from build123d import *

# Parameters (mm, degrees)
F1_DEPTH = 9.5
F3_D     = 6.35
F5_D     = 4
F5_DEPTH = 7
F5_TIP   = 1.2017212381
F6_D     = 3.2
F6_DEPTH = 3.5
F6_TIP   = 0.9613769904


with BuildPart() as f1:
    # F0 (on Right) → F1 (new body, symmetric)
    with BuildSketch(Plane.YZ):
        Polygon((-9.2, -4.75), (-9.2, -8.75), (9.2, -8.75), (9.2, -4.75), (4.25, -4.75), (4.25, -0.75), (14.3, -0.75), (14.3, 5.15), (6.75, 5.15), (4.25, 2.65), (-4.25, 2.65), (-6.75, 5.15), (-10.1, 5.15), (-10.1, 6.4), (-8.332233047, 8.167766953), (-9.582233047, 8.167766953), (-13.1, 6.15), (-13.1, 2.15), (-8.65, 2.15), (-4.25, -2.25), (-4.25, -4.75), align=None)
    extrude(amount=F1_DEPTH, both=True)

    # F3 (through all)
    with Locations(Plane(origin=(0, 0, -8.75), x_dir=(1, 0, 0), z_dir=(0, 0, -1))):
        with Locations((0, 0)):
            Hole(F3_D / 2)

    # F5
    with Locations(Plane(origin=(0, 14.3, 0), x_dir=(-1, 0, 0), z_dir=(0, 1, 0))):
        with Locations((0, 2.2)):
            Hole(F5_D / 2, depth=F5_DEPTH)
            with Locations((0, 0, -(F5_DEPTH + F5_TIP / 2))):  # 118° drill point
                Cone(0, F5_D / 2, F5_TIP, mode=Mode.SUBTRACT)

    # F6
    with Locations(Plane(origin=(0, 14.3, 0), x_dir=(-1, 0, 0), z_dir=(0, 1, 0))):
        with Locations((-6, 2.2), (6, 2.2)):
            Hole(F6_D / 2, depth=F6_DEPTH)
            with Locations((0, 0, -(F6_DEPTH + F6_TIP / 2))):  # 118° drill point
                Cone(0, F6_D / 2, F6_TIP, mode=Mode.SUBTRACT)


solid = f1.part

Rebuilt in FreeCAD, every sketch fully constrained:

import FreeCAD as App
import Part
import Sketcher

V = App.Vector


def add_polygon(sketch, points):
    """Adds a closed chain of lines whose ends are joined by coincident constraints."""
    first, n = sketch.GeometryCount, len(points)
    for a, b in zip(points, points[1:] + points[:1]):
        sketch.addGeometry(Part.LineSegment(App.Vector(*a, 0), App.Vector(*b, 0)), False)
    for i in range(n):
        sketch.addConstraint(Sketcher.Constraint("Coincident", first + i, 2, first + (i + 1) % n, 1))

doc = App.newDocument("Part")
body = doc.addObject("PartDesign::Body", "Body")

# Sketch on YZ plane
sketch1 = doc.addObject("Sketcher::SketchObject", "Sketch")
body.addObject(sketch1)
sketch1.AttachmentSupport = (doc.YZ_Plane, [""])
sketch1.MapMode = "FlatFace"
add_polygon(sketch1, [(-9.2, -4.8), (-9.2, -8.8), (9.2, -8.8), (9.2, -4.8), (4.2, -4.8), (4.2, -0.8), (14.3, -0.8), (14.3, 5.2), (6.8, 5.2), (4.2, 2.6), (-4.2, 2.6), (-6.8, 5.2), (-10.1, 5.2), (-10.1, 6.4), (-8.3, 8.2), (-9.6, 8.2), (-13.1, 6.2), (-13.1, 2.1), (-8.7, 2.1), (-4.2, -2.2), (-4.2, -4.8)])  # lines 0-20
sketch1.addConstraint(Sketcher.Constraint("Vertical", 0))
sketch1.addConstraint(Sketcher.Constraint("Horizontal", 1))
sketch1.addConstraint(Sketcher.Constraint("Vertical", 2))
sketch1.addConstraint(Sketcher.Constraint("Horizontal", 3))
sketch1.addConstraint(Sketcher.Constraint("Vertical", 4))
sketch1.addConstraint(Sketcher.Constraint("Horizontal", 5))
sketch1.addConstraint(Sketcher.Constraint("Vertical", 6))
sketch1.addConstraint(Sketcher.Constraint("Horizontal", 7))
sketch1.addConstraint(Sketcher.Constraint("Horizontal", 9))
sketch1.addConstraint(Sketcher.Constraint("Horizontal", 11))
sketch1.addConstraint(Sketcher.Constraint("Vertical", 12))
sketch1.addConstraint(Sketcher.Constraint("Horizontal", 14))
sketch1.addConstraint(Sketcher.Constraint("Vertical", 16))
sketch1.addConstraint(Sketcher.Constraint("Horizontal", 17))
sketch1.addConstraint(Sketcher.Constraint("Vertical", 19))
sketch1.addConstraint(Sketcher.Constraint("Horizontal", 20))
sketch1.addConstraint(Sketcher.Constraint("Symmetric", 7, 2, 10, 2, -2))
sketch1.addConstraint(Sketcher.Constraint("Symmetric", 3, 2, 19, 2, -2))
sketch1.addConstraint(Sketcher.Constraint("Perpendicular", 8, 10))
sketch1.addConstraint(Sketcher.Constraint("Perpendicular", 10, 13))
sketch1.addConstraint(Sketcher.Constraint("Perpendicular", 13, 18))
sketch1.addConstraint(Sketcher.Constraint("Vertical", 4, 2, 8, 2))
sketch1.addConstraint(Sketcher.Constraint("Vertical", 9, 2, 18, 2))
sketch1.addConstraint(Sketcher.Constraint("Equal", 3, 20))
sketch1.addConstraint(Sketcher.Constraint("Equal", 2, 4))
sketch1.addConstraint(Sketcher.Constraint("Equal", 14, 12))
sketch1.addConstraint(Sketcher.Constraint("Equal", 4, 16))
sketch1.addConstraint(Sketcher.Constraint("DistanceY", 0, 2, 0, 1, 4.0))
sketch1.addConstraint(Sketcher.Constraint("DistanceX", 1, 1, 1, 2, 18.4))
sketch1.addConstraint(Sketcher.Constraint("DistanceX", 9, 2, 9, 1, 8.5))
sketch1.addConstraint(Sketcher.Constraint("DistanceY", 6, 1, 6, 2, 5.9))
sketch1.addConstraint(Sketcher.Constraint("DistanceY", 19, 2, 19, 1, 2.5))
sketch1.addConstraint(Sketcher.Constraint("DistanceX", 9, 2, 7, 2, 11.0))
sketch1.addConstraint(Sketcher.Constraint("DistanceX", 15, 2, 12, 2, 3.0))
sketch1.addConstraint(Sketcher.Constraint("DistanceY", 11, 2, 15, 2, 1.0))
sketch1.addConstraint(Sketcher.Constraint("Distance", 13, 2.5))
sketch1.addConstraint(Sketcher.Constraint("DistanceX", 5, 1, 5, 2, 10.05))
sketch1.addConstraint(Sketcher.Constraint("DistanceX", 11, 2, 11, 1, 3.35))
sketch1.addConstraint(Sketcher.Constraint("DistanceX", 14, 2, 14, 1, 1.25))
sketch1.addConstraint(Sketcher.Constraint("DistanceY", -1, 1, 12, 2, 6.4))
pad1 = doc.addObject("PartDesign::Pad", "Pad")
body.addObject(pad1)
pad1.Profile = sketch1
pad1.Length = 19
pad1.Midplane = True

# Sketch on XY plane
sketch2 = doc.addObject("Sketcher::SketchObject", "Sketch001")
body.addObject(sketch2)
sketch2.AttachmentSupport = (doc.XY_Plane, [""])
sketch2.MapMode = "FlatFace"
sketch2.AttachmentOffset = App.Placement(V(0, 0, -8.75), App.Rotation())
sketch2.addGeometry(Part.Circle(V(0, 0, 0), V(0, 0, 1), 3.2), False)
sketch2.addConstraint(Sketcher.Constraint("Coincident", 0, 3, -1, 1))
sketch2.addConstraint(Sketcher.Constraint("Diameter", 0, 6.35))
doc.recompute()
hole = doc.addObject("PartDesign::Hole", "Hole")
body.addObject(hole)
hole.Profile = sketch2
hole.ThreadType = "None"
hole.Diameter = 6.35
hole.DepthType = "ThroughAll"
hole.Reversed = True

# Sketch on XZ plane
sketch3 = doc.addObject("Sketcher::SketchObject", "Sketch002")
body.addObject(sketch3)
sketch3.AttachmentSupport = (doc.XZ_Plane, [""])
sketch3.MapMode = "FlatFace"
sketch3.AttachmentOffset = App.Placement(V(0, 0, -14.3), App.Rotation())
sketch3.addGeometry(Part.Circle(V(0, 2.2, 0), V(0, 0, 1), 2), False)
sketch3.addConstraint(Sketcher.Constraint("PointOnObject", 0, 3, -2))
sketch3.addConstraint(Sketcher.Constraint("Diameter", 0, 4.0))
sketch3.addConstraint(Sketcher.Constraint("DistanceY", -1, 1, 0, 3, 2.2))
doc.recompute()
hole2 = doc.addObject("PartDesign::Hole", "Hole001")
body.addObject(hole2)
hole2.Profile = sketch3
hole2.ThreadType = "None"
hole2.Diameter = 4
hole2.DepthType = "Dimension"
hole2.Depth = 7
hole2.DrillPoint = "Angled"
hole2.DrillPointAngle = 118
hole2.Reversed = True

# Sketch on XZ plane
sketch4 = doc.addObject("Sketcher::SketchObject", "Sketch003")
body.addObject(sketch4)
sketch4.AttachmentSupport = (doc.XZ_Plane, [""])
sketch4.MapMode = "FlatFace"
sketch4.AttachmentOffset = App.Placement(V(0, 0, -14.3), App.Rotation())
sketch4.addGeometry(Part.Circle(V(6, 2.2, 0), V(0, 0, 1), 1.6), False)
sketch4.addGeometry(Part.Circle(V(-6, 2.2, 0), V(0, 0, 1), 1.6), False)
sketch4.addConstraint(Sketcher.Constraint("Equal", 0, 1))
sketch4.addConstraint(Sketcher.Constraint("Symmetric", 0, 3, 1, 3, -2))
sketch4.addConstraint(Sketcher.Constraint("Diameter", 0, 3.2))
sketch4.addConstraint(Sketcher.Constraint("DistanceX", -1, 1, 0, 3, 6.0))
sketch4.addConstraint(Sketcher.Constraint("DistanceY", -1, 1, 0, 3, 2.2))
doc.recompute()
hole3 = doc.addObject("PartDesign::Hole", "Hole002")
body.addObject(hole3)
hole3.Profile = sketch4
hole3.ThreadType = "None"
hole3.Diameter = 3.2
hole3.DepthType = "Dimension"
hole3.Depth = 3.5
hole3.DrillPoint = "Angled"
hole3.DrillPointAngle = 118
hole3.Reversed = True

doc.recompute()
